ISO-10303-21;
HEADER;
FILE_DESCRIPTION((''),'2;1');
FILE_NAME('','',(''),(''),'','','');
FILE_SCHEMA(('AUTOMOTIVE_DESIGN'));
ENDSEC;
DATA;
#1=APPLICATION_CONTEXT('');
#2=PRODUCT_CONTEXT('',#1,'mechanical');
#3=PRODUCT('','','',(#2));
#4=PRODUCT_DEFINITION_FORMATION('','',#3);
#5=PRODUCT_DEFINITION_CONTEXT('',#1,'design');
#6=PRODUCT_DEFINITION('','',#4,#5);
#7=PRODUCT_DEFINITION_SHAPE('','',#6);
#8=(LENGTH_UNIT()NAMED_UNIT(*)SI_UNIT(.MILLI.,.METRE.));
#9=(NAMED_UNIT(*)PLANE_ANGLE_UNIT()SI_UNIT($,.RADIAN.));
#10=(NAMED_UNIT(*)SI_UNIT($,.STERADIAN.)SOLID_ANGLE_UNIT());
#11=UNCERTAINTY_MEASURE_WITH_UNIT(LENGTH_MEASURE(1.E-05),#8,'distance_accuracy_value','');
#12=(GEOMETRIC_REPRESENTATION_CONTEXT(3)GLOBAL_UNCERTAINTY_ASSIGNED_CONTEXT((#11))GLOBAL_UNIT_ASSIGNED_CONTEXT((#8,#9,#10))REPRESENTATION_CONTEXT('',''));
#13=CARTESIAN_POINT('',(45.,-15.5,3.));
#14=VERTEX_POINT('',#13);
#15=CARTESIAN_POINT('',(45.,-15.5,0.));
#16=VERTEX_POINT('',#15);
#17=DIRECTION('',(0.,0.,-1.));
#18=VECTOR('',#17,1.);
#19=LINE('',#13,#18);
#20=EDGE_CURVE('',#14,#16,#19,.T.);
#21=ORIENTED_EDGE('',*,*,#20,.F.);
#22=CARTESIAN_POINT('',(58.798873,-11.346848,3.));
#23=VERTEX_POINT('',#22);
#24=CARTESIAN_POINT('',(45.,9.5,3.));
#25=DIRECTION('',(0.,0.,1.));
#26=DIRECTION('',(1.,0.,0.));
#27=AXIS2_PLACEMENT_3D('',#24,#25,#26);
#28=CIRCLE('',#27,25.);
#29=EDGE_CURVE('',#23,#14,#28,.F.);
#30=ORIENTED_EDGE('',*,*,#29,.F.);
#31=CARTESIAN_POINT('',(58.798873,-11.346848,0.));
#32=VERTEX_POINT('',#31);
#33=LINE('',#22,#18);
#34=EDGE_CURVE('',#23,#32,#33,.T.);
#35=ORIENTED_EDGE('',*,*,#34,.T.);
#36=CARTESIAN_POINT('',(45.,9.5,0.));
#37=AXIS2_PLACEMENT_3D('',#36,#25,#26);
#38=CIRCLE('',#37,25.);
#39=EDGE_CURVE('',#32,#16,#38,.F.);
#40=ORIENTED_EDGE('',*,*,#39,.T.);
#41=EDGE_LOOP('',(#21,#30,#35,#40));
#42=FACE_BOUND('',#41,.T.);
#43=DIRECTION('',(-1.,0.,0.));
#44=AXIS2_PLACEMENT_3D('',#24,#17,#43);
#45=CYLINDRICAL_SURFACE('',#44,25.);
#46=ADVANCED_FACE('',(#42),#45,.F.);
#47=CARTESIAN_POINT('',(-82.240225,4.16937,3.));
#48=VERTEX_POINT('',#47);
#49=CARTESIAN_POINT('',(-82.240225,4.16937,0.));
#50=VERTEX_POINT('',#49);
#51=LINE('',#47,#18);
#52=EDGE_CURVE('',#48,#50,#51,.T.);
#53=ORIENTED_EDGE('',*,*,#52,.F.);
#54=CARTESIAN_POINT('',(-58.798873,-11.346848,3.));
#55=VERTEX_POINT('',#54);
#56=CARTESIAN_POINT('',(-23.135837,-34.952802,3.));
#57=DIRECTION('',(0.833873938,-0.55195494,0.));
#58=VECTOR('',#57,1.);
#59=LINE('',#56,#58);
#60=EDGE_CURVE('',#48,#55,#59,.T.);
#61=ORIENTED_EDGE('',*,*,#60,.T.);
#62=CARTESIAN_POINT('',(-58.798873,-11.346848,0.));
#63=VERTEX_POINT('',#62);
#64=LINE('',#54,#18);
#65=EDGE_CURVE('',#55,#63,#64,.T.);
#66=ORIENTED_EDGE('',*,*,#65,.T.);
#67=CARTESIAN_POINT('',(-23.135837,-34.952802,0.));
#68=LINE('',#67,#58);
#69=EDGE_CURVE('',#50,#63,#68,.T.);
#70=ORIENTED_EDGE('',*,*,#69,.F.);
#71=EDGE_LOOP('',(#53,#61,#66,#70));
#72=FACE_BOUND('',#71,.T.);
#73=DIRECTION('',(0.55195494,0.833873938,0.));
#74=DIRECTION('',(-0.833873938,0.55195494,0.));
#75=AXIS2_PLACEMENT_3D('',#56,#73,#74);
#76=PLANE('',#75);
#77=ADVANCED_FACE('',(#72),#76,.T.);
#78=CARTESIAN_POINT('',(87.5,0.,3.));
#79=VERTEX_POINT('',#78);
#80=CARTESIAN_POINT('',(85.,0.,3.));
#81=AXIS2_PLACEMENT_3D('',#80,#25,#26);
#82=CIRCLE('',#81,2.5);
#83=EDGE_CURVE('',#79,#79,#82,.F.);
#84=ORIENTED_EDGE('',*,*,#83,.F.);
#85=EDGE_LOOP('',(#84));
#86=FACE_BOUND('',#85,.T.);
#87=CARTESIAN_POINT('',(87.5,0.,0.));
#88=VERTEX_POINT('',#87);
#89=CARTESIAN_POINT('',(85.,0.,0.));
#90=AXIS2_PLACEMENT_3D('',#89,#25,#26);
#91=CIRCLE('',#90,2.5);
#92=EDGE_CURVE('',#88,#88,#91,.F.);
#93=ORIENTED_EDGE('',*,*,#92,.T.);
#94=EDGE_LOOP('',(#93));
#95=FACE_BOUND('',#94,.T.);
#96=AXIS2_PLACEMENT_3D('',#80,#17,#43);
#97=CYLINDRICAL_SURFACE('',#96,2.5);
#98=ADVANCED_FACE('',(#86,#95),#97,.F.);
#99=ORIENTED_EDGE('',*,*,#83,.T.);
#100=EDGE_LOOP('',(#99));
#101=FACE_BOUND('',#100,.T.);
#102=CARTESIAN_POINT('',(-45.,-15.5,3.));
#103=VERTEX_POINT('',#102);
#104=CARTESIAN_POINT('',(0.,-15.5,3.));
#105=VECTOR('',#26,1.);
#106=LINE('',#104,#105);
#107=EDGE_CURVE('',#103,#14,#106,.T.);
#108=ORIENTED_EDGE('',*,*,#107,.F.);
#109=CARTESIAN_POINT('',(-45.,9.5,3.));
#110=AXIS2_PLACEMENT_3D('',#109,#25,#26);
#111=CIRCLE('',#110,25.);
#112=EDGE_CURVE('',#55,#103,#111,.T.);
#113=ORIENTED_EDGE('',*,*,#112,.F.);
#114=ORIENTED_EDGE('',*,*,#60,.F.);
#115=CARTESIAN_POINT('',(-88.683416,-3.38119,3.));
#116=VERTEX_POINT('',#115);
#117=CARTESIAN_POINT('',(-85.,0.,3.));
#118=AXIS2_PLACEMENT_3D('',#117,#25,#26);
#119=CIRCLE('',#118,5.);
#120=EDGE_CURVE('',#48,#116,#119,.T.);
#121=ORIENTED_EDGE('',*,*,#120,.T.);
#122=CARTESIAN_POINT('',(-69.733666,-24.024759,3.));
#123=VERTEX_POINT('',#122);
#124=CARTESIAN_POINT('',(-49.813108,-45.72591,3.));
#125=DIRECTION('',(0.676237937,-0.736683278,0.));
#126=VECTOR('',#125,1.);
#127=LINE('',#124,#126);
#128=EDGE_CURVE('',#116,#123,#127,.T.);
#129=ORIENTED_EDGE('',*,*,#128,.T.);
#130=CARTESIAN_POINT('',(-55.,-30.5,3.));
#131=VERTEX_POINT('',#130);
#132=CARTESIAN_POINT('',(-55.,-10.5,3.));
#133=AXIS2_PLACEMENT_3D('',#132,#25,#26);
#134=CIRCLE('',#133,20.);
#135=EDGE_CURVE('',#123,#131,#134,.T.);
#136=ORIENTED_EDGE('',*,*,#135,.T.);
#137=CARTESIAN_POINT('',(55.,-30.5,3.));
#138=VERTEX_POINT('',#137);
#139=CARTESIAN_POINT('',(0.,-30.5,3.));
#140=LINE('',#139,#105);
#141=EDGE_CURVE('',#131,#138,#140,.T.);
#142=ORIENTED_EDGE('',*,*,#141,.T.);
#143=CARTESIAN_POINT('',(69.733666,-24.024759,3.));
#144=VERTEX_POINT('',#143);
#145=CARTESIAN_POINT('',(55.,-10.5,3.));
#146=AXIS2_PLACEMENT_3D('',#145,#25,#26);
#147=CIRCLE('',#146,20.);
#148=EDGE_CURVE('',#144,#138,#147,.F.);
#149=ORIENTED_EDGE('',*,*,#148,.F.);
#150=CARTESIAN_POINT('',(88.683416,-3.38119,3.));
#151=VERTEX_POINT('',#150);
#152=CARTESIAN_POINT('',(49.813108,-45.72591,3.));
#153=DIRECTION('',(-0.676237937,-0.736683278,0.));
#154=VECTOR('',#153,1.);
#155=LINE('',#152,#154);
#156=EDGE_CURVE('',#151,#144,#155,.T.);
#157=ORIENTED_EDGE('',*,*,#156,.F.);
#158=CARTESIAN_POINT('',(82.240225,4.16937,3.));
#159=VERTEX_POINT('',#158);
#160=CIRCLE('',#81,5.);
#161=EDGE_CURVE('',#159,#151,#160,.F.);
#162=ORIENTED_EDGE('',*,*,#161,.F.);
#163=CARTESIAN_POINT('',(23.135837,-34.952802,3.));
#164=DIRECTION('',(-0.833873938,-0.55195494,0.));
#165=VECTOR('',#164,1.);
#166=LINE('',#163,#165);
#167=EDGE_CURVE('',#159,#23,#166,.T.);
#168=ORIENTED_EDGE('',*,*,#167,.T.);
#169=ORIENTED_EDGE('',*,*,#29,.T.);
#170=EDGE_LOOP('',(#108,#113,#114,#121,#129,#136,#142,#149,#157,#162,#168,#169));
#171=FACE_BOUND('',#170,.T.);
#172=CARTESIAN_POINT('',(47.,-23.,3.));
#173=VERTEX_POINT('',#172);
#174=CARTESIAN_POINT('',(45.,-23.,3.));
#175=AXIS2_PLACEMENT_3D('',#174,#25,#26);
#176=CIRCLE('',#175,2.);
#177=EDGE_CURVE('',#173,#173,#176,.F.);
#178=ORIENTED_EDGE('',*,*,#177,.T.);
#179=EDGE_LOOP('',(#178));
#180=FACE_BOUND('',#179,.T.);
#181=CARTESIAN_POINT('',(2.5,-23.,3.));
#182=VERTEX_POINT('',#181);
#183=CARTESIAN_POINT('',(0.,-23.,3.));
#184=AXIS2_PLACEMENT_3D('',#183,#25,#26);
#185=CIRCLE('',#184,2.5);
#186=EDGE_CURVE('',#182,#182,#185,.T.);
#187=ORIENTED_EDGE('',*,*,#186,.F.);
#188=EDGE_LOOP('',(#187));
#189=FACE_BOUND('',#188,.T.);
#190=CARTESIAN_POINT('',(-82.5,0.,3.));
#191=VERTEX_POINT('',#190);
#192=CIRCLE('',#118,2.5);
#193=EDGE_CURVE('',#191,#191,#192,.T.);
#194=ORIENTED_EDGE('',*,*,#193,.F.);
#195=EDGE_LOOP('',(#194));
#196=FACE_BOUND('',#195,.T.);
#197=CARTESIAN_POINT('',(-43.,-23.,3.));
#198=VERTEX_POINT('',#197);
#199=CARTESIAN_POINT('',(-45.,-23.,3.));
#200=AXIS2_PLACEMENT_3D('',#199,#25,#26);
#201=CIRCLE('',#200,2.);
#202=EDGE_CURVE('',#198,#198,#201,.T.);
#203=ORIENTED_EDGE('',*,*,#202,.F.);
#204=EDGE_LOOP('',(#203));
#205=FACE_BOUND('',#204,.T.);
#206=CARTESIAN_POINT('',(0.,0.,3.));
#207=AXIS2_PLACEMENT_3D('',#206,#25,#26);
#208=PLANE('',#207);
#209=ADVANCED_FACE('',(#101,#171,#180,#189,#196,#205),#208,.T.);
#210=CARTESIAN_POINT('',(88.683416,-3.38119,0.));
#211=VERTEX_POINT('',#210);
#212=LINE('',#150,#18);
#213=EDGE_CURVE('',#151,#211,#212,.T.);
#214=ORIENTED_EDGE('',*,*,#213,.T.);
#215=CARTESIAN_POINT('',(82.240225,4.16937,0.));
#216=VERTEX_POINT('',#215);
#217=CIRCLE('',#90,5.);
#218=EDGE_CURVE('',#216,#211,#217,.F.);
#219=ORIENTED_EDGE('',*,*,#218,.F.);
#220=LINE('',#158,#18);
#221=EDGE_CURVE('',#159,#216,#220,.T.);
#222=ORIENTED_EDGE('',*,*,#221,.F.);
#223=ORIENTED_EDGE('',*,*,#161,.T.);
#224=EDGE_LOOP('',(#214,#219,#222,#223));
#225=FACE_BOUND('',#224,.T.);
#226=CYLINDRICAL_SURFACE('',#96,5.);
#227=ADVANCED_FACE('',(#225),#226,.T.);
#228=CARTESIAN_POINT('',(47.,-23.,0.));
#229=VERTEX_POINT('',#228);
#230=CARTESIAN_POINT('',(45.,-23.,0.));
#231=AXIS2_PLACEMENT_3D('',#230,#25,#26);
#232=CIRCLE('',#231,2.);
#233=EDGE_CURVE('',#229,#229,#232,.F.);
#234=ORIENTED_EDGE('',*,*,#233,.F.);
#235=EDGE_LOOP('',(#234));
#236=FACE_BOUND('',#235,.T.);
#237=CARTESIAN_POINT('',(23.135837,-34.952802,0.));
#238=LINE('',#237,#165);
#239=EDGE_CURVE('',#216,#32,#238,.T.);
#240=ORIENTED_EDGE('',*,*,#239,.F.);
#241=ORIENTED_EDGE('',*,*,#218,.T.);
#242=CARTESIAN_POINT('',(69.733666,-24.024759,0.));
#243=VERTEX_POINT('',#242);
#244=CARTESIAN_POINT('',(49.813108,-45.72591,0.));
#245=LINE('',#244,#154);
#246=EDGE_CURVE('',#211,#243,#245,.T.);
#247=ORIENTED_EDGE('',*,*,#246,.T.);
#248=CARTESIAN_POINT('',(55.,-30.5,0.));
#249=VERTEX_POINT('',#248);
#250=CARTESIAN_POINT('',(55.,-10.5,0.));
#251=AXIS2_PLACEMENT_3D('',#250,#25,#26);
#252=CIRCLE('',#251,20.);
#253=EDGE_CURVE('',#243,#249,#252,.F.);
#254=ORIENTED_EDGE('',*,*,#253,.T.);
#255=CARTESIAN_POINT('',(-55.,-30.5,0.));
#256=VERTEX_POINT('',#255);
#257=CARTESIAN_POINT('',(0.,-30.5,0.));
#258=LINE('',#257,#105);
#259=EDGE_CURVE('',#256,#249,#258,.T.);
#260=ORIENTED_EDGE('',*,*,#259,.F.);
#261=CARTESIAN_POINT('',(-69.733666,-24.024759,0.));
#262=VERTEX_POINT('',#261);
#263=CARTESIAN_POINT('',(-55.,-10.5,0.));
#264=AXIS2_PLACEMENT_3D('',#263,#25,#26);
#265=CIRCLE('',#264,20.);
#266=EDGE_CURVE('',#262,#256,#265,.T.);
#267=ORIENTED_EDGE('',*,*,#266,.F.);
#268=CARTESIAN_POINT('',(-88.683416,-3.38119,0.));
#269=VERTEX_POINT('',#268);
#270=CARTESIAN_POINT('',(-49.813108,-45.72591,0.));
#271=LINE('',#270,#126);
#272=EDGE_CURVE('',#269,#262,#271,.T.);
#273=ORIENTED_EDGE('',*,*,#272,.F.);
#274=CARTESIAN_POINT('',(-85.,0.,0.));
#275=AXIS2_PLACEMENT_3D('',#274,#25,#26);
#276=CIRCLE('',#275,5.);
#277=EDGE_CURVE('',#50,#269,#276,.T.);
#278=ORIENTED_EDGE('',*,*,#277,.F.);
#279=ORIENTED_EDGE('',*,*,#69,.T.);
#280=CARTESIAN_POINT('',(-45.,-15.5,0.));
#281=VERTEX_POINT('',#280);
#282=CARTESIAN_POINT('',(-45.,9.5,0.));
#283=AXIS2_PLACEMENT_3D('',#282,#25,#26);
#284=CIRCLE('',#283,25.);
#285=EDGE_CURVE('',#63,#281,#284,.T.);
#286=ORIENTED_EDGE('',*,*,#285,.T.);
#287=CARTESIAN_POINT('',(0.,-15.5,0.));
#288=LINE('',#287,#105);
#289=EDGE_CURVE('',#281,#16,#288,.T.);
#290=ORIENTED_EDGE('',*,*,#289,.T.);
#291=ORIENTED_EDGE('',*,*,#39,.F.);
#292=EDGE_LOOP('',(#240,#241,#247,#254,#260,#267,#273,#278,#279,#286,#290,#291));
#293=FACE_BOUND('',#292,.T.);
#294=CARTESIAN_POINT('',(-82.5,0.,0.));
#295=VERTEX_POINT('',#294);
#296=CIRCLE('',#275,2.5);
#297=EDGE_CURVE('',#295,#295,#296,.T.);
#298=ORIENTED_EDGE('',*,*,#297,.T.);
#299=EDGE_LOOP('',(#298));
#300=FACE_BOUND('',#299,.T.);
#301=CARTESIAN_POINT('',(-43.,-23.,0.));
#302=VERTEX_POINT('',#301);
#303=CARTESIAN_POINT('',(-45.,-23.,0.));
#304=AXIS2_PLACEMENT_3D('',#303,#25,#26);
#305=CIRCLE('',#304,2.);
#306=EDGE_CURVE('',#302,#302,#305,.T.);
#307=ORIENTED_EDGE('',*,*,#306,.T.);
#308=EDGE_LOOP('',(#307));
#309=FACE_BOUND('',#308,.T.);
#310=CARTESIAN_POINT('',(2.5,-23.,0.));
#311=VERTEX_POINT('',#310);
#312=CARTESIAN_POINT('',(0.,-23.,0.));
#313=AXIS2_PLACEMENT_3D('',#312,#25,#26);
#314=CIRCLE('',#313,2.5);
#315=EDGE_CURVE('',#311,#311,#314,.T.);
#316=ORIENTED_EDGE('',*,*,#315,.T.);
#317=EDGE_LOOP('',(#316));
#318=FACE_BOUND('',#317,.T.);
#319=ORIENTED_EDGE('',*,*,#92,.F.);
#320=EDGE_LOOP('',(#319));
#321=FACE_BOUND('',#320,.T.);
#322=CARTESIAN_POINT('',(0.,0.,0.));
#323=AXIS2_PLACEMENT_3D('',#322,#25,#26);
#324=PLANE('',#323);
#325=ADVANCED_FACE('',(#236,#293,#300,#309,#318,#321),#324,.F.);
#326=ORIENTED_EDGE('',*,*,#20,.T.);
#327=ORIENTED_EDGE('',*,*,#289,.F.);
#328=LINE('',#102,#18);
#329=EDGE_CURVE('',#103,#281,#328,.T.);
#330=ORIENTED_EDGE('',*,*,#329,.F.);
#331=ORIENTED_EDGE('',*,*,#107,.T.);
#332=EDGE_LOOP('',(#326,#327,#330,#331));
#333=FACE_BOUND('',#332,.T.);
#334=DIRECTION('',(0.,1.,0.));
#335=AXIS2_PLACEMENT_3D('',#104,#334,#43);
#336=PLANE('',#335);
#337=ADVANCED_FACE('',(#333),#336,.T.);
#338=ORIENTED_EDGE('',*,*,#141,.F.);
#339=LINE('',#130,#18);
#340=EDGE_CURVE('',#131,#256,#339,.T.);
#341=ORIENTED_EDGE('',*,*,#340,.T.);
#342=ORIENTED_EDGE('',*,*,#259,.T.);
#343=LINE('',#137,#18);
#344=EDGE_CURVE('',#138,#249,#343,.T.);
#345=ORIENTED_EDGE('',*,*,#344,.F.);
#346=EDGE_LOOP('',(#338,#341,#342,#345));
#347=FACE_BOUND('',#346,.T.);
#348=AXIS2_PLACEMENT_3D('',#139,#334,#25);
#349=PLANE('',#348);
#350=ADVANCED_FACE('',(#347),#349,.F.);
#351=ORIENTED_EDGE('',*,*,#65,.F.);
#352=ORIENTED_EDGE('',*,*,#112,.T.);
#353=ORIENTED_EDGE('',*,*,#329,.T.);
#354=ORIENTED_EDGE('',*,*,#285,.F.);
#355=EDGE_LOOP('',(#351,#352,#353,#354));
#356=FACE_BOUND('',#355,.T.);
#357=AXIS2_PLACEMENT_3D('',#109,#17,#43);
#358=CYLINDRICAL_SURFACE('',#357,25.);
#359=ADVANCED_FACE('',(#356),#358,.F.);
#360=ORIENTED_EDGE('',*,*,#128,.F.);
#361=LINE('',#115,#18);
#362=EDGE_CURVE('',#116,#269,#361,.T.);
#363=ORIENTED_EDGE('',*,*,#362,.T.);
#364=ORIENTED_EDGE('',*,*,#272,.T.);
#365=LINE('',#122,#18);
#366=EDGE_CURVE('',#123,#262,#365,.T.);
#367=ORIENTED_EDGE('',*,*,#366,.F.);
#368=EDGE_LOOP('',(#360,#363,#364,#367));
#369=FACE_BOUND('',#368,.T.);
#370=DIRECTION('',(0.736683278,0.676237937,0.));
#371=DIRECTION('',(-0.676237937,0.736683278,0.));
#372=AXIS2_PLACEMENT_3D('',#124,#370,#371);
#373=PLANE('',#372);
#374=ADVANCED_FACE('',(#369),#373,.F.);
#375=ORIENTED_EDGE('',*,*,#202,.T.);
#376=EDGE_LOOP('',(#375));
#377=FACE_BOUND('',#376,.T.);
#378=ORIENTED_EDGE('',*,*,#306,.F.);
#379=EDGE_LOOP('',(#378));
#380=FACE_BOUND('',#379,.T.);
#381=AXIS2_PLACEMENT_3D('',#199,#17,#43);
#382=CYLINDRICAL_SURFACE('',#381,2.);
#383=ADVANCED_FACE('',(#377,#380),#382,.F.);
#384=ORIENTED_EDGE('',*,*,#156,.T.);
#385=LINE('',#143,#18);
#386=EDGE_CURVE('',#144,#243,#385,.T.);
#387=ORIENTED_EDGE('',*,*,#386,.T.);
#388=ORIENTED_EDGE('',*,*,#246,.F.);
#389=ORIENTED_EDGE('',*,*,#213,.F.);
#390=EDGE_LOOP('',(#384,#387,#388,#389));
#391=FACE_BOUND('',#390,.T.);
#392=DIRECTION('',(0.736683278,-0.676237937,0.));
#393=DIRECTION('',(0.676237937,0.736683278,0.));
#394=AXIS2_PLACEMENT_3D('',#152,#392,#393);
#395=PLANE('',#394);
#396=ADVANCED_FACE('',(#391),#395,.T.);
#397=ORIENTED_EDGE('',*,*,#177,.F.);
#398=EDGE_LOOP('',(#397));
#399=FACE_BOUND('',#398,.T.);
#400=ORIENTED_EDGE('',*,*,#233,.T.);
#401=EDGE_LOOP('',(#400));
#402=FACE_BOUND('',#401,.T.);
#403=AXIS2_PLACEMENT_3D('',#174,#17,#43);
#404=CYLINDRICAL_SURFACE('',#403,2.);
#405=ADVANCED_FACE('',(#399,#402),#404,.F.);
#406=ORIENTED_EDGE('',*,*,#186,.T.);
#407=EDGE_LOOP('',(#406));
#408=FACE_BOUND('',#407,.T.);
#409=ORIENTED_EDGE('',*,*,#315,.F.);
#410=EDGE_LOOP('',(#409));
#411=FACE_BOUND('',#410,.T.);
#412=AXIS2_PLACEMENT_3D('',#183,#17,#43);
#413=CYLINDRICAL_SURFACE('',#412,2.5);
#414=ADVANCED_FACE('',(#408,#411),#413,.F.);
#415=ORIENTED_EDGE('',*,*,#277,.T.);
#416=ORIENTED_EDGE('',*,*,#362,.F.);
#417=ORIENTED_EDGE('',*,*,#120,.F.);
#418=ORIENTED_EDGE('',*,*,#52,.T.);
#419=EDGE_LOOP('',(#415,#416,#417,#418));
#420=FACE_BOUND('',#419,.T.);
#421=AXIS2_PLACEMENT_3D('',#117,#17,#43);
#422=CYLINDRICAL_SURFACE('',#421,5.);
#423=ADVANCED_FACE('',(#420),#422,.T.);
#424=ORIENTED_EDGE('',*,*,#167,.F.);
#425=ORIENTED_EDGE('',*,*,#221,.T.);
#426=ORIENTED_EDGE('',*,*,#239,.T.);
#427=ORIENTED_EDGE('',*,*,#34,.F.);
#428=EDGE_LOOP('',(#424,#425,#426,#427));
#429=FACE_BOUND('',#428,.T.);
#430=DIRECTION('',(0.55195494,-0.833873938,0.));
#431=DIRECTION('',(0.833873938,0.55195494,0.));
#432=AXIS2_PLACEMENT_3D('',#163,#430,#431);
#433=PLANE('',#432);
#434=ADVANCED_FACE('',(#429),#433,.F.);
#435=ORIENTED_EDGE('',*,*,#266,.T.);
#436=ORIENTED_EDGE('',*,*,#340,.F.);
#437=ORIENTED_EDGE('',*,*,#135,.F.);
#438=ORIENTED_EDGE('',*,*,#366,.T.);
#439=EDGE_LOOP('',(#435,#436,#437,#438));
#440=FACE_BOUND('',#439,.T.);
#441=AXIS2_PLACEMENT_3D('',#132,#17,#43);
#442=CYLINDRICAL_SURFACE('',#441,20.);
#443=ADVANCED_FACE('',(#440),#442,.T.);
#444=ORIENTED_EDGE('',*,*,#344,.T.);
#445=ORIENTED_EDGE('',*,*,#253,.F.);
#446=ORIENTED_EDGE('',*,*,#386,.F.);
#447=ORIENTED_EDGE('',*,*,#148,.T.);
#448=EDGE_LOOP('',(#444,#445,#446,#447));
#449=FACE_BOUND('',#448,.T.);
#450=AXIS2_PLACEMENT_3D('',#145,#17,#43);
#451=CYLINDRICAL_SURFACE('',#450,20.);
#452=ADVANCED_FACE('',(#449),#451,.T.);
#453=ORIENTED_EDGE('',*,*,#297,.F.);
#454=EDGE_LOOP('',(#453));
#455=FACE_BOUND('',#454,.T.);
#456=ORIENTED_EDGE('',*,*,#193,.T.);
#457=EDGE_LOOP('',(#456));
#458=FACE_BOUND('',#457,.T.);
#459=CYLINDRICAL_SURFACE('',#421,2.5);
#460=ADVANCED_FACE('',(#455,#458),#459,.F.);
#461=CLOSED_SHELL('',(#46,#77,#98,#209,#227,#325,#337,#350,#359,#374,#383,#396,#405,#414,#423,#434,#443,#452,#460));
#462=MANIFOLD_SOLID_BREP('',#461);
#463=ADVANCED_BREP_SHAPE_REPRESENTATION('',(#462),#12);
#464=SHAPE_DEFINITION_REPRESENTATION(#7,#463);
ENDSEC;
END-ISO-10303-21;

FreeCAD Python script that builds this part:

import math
import FreeCAD as App
import Part
import Sketcher
from FreeCAD import Vector
Q = App.Units.Quantity

doc = App.newDocument("Part")
body = doc.addObject("PartDesign::Body", "Body")

# Sketch on XY plane
sketch1 = doc.addObject("Sketcher::SketchObject", "Sketch")
body.addObject(sketch1)
sketch1.AttachmentSupport = (doc.XY_Plane, [""])
sketch1.MapMode = "FlatFace"
sketch1.addGeometry([
    Part.LineSegment(Vector(-55, -30.5, 0), Vector(55, -30.5, 0)),  # 0
    Part.ArcOfCircle(Part.Circle(Vector(55, -10.5, 0), Vector(0, 0, 1), 20), math.radians(-90), math.radians(-43)),  # 1
    Part.LineSegment(Vector(69.7, -24, 0), Vector(88.7, -3.4, 0)),  # 2
    Part.ArcOfCircle(Part.Circle(Vector(85, 0, 0), Vector(0, 0, 1), 5), math.radians(-43), math.radians(124)),  # 3
    Part.LineSegment(Vector(82.2, 4.2, 0), Vector(58.8, -11.3, 0)),  # 4
    Part.ArcOfCircle(Part.Circle(Vector(45, 9.5, 0), Vector(0, 0, 1), 25), math.radians(-90), math.radians(-56)),  # 5
    Part.LineSegment(Vector(45, -15.5, 0), Vector(-45, -15.5, 0)),  # 6
    Part.ArcOfCircle(Part.Circle(Vector(-45, 9.5, 0), Vector(0, 0, 1), 25), math.radians(-124), math.radians(-90)),  # 7
    Part.LineSegment(Vector(-58.8, -11.3, 0), Vector(-82.2, 4.2, 0)),  # 8
    Part.ArcOfCircle(Part.Circle(Vector(-85, 0, 0), Vector(0, 0, 1), 5), math.radians(56), math.radians(223)),  # 9
    Part.LineSegment(Vector(-88.7, -3.4, 0), Vector(-69.7, -24, 0)),  # 10
    Part.ArcOfCircle(Part.Circle(Vector(-55, -10.5, 0), Vector(0, 0, 1), 20), math.radians(-137), math.radians(-90)),  # 11
    Part.Circle(Vector(-45, -23, 0), Vector(0, 0, 1), 2),  # 12
    Part.Circle(Vector(0, -23, 0), Vector(0, 0, 1), 2.5),  # 13
    Part.Circle(Vector(45, -23, 0), Vector(0, 0, 1), 2),  # 14
    Part.Circle(Vector(-85, 0, 0), Vector(0, 0, 1), 2.5),  # 15
    Part.Circle(Vector(85, 0, 0), Vector(0, 0, 1), 2.5),  # 16
], False)
sketch1.addConstraint([
    Sketcher.Constraint("Tangent", 0, 2, 1, 1),
    Sketcher.Constraint("Tangent", 1, 2, 2, 1),
    Sketcher.Constraint("Tangent", 2, 2, 3, 1),
    Sketcher.Constraint("Tangent", 3, 2, 4, 1),
    Sketcher.Constraint("Tangent", 4, 2, 5, 2),
    Sketcher.Constraint("Tangent", 5, 1, 6, 1),
    Sketcher.Constraint("Tangent", 6, 2, 7, 2),
    Sketcher.Constraint("Tangent", 7, 1, 8, 1),
    Sketcher.Constraint("Tangent", 8, 2, 9, 1),
    Sketcher.Constraint("Tangent", 9, 2, 10, 1),
    Sketcher.Constraint("Tangent", 10, 2, 11, 1),
    Sketcher.Constraint("Tangent", 11, 2, 0, 1),
    Sketcher.Constraint("Horizontal", 0),
    Sketcher.Constraint("Horizontal", 6),
    Sketcher.Constraint("Coincident", 15, 3, 9, 3),
    Sketcher.Constraint("Coincident", 16, 3, 3, 3),
    Sketcher.Constraint("Equal", 5, 7),
    Sketcher.Constraint("Equal", 3, 9),
    Sketcher.Constraint("Equal", 1, 11),
    Sketcher.Constraint("Equal", 12, 14),
    Sketcher.Constraint("Equal", 13, 15),
    Sketcher.Constraint("Equal", 15, 16),
    Sketcher.Constraint("Symmetric", 3, 3, 9, 3, -1, 1),
    Sketcher.Constraint("Symmetric", 12, 3, 14, 3, -2),
    Sketcher.Constraint("Symmetric", 4, 2, 7, 1, -2),
    Sketcher.Constraint("PointOnObject", 13, 3, -2),
    Sketcher.Constraint("Horizontal", 12, 3, 13, 3),
    Sketcher.Constraint("Horizontal", 2, 2, 9, 2),
    Sketcher.Constraint("Vertical", 7, 3, 12, 3),
    Sketcher.Constraint("Diameter", 12, Q("4 mm")),
    Sketcher.Constraint("Diameter", 13, Q("5 mm")),
    Sketcher.Constraint("Radius", 1, Q("20 mm")),
    Sketcher.Constraint("Radius", 3, Q("5 mm")),
    Sketcher.Constraint("Radius", 5, Q("25 mm")),
    Sketcher.Constraint("DistanceX", 0, 1, 0, 2, Q("110 mm")),
    Sketcher.Constraint("DistanceX", 6, 2, 6, 1, Q("90 mm")),
    Sketcher.Constraint("DistanceX", -1, 1, 3, 3, Q("85 mm")),
    Sketcher.Constraint("DistanceY", 12, 3, -1, 1, Q("23 mm")),
    Sketcher.Constraint("DistanceY", 1, 3, 5, 3, Q("20 mm")),
    Sketcher.Constraint("DistanceY", 1, 3, -1, 1, Q("10.5 mm")),
])
pad1 = doc.addObject("PartDesign::Pad", "Pad")
body.addObject(pad1)
pad1.Profile = sketch1
pad1.Length = 3

doc.recompute()
